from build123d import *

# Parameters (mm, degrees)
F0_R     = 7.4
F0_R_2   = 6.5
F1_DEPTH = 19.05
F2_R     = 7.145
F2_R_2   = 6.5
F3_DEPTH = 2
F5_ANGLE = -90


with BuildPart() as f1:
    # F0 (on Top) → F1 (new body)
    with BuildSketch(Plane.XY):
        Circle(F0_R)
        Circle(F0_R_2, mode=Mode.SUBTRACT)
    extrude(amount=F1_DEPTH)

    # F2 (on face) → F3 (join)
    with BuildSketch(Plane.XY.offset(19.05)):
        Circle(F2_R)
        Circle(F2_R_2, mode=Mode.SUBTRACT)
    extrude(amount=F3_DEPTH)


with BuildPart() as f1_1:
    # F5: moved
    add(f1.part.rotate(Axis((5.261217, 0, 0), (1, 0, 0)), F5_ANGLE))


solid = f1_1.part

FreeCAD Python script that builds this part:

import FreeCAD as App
import Part
import Sketcher

doc = App.newDocument("Part")
body = doc.addObject("PartDesign::Body", "Body")

# Sketch on XY plane
sketch1 = doc.addObject("Sketcher::SketchObject", "Sketch")
body.addObject(sketch1)
sketch1.AttachmentSupport = (doc.XY_Plane, [""])
sketch1.MapMode = "FlatFace"
sketch1.addGeometry([
    Part.Circle(App.Vector(0, 0, 0), App.Vector(0, 0, 1), 7.4),
    Part.Circle(App.Vector(0, 0, 0), App.Vector(0, 0, 1), 6.5),
], False)
sketch1.addConstraint([
    Sketcher.Constraint("Coincident", 0, 3, -1, 1),
    Sketcher.Constraint("Coincident", 1, 3, -1, 1),
    Sketcher.Constraint("Diameter", 1, 13.0),
    Sketcher.Constraint("Diameter", 0, 14.8),
])
pad1 = doc.addObject("PartDesign::Pad", "Pad")
body.addObject(pad1)
pad1.Profile = sketch1
pad1.Length = 19.05

# Sketch on XY plane
sketch2 = doc.addObject("Sketcher::SketchObject", "Sketch001")
body.addObject(sketch2)
sketch2.AttachmentSupport = (doc.XY_Plane, [""])
sketch2.MapMode = "FlatFace"
sketch2.AttachmentOffset = App.Placement(App.Vector(0, 0, 19.05), App.Rotation())
sketch2.addGeometry([
    Part.Circle(App.Vector(0, 0, 0), App.Vector(0, 0, 1), 7.145),
    Part.Circle(App.Vector(0, 0, 0), App.Vector(0, 0, 1), 6.5),
], False)
sketch2.addConstraint([
    Sketcher.Constraint("Coincident", 0, 3, -1, 1),
    Sketcher.Constraint("Coincident", 1, 3, -1, 1),
    Sketcher.Constraint("Diameter", 1, 13.0),
    Sketcher.Constraint("Diameter", 0, 14.29),
])
pad2 = doc.addObject("PartDesign::Pad", "Pad001")
body.addObject(pad2)
pad2.Profile = sketch2
pad2.Length = 2
body2 = doc.addObject("PartDesign::Body", "Body001")
doc.recompute()

body.Placement = App.Placement(App.Vector(0, 0, 0), App.Rotation(App.Vector(1, 0, 0), 270))
boolean = doc.addObject("PartDesign::Boolean", "Boolean")
body2.addObject(boolean)
boolean.Type = "Fuse"
boolean.addObjects([body])

doc.recompute()
